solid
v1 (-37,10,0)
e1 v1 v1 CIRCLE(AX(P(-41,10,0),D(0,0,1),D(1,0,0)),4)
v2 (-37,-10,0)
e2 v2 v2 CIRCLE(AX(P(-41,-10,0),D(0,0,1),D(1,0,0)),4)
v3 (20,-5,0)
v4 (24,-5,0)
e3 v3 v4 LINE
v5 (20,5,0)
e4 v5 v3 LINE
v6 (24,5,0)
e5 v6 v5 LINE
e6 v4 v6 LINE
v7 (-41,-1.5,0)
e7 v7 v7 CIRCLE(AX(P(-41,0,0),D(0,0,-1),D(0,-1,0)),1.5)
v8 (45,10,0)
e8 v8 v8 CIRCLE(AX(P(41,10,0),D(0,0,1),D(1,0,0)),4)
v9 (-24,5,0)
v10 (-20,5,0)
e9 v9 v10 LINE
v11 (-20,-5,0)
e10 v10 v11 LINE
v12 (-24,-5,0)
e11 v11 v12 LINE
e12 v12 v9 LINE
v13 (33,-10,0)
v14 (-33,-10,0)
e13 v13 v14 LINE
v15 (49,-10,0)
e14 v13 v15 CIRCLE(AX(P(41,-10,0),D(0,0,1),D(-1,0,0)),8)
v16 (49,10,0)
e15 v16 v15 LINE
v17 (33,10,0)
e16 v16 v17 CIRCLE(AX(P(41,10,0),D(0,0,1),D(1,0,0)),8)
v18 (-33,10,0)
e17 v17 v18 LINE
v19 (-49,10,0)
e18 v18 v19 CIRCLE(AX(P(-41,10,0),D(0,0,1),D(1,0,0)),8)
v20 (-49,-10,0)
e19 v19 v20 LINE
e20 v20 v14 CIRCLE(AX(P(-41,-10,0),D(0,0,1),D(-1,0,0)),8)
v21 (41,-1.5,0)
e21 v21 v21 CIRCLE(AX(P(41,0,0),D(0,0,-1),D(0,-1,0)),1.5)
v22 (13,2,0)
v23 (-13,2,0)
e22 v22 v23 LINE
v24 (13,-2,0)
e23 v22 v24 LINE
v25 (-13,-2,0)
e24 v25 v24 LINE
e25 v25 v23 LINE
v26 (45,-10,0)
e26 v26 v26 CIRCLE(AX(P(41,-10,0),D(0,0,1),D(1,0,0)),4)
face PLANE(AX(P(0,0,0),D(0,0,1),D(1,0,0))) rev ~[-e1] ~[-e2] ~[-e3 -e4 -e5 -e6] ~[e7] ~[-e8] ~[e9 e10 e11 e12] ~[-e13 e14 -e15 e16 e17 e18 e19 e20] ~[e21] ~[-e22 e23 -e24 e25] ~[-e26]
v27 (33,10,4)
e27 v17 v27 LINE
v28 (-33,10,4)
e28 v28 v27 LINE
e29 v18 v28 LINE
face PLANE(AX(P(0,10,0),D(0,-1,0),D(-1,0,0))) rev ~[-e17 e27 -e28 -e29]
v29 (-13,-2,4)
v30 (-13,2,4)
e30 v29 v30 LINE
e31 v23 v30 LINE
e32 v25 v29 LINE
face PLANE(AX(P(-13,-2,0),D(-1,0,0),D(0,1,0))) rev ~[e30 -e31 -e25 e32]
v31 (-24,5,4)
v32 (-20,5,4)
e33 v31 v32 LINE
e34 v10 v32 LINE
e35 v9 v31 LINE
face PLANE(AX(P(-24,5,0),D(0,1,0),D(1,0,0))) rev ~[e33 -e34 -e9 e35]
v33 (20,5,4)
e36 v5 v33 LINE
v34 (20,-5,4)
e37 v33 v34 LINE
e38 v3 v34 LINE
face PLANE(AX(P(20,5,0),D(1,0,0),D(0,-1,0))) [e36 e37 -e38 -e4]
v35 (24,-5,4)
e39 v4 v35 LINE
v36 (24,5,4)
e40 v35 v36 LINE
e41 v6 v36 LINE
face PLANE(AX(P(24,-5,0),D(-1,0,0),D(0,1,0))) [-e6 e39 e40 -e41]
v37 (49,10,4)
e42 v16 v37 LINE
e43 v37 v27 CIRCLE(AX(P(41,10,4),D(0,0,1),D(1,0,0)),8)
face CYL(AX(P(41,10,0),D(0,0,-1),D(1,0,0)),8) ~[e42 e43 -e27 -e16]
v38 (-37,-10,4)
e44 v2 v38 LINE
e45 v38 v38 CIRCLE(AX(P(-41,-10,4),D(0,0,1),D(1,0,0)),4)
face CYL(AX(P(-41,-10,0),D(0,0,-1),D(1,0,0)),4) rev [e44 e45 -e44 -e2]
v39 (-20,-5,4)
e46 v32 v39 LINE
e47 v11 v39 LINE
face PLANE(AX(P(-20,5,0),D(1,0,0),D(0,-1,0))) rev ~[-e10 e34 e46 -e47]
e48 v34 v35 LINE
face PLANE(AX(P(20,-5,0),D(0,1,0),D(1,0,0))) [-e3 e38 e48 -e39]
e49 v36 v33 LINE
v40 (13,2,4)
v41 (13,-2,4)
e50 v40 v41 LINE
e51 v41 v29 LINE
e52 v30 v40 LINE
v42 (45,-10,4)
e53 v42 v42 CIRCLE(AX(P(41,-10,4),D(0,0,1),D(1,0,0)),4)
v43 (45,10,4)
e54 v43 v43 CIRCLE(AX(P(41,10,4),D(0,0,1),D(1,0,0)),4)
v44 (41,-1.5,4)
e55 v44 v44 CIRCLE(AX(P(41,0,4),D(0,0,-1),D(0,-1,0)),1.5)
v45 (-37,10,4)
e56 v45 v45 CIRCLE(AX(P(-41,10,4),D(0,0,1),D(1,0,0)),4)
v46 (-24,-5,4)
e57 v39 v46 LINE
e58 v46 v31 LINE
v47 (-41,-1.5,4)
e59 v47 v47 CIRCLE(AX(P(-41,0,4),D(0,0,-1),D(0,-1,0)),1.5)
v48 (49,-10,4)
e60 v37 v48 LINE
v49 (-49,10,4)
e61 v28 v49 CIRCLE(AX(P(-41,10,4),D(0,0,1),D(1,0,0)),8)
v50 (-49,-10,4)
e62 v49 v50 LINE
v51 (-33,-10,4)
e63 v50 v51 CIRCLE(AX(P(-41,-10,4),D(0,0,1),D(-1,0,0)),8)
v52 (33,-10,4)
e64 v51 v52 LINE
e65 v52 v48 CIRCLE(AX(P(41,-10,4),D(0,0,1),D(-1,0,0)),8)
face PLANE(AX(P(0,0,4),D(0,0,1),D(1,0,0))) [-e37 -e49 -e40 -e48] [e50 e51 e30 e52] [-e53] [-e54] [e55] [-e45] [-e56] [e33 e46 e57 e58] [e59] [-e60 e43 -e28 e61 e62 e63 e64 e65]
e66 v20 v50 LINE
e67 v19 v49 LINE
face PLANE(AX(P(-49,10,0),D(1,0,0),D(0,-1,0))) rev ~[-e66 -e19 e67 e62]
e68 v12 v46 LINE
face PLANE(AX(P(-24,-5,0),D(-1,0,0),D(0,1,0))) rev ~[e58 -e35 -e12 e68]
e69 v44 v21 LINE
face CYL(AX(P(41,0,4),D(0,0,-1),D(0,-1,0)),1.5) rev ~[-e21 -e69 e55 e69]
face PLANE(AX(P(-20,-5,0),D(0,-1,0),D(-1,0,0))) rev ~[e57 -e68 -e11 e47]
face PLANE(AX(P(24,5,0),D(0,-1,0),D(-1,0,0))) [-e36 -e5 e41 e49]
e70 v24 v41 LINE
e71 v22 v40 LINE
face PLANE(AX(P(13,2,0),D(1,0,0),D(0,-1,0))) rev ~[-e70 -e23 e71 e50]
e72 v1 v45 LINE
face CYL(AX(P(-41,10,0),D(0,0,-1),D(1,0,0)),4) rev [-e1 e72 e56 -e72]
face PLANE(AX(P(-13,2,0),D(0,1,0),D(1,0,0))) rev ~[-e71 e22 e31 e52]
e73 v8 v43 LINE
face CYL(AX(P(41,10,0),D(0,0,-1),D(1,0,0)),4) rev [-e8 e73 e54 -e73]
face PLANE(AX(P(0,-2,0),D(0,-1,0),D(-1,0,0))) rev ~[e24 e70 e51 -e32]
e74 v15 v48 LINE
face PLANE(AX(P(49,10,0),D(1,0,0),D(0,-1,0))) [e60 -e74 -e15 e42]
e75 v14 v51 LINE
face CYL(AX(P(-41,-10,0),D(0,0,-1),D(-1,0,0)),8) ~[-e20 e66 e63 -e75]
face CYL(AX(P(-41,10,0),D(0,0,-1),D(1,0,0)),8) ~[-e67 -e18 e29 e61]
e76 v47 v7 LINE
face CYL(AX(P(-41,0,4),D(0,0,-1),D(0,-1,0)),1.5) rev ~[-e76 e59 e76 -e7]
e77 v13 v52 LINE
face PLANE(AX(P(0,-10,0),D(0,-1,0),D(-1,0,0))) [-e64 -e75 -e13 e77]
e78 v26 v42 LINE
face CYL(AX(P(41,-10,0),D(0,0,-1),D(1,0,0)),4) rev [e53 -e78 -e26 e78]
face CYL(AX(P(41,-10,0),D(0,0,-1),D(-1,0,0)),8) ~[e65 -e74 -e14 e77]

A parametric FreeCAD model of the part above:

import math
import FreeCAD as App
import Part
import Sketcher
from FreeCAD import Vector
Q = App.Units.Quantity


def add_polygon(sketch, points):
    """Adds a closed chain of lines whose ends are joined by coincident constraints."""
    first, n = sketch.GeometryCount, len(points)
    for a, b in zip(points, points[1:] + points[:1]):
        sketch.addGeometry(Part.LineSegment(App.Vector(*a, 0), App.Vector(*b, 0)), False)
    for i in range(n):
        sketch.addConstraint(Sketcher.Constraint("Coincident", first + i, 2, first + (i + 1) % n, 1))

doc = App.newDocument("Part")
body = doc.addObject("PartDesign::Body", "Body")

# Sketch on XY plane
sketch1 = body.newObject("Sketcher::SketchObject", "Sketch")
sketch1.AttachmentSupport = (doc.getObject("XY_Plane"), [""])
sketch1.MapMode = "FlatFace"
sketch1.addGeometry(Part.ArcOfCircle(Part.Circle(Vector(-41, 10, 0), Vector(0, 0, 1), 8), math.radians(0), math.radians(180)), False)  # 0
sketch1.addGeometry(Part.LineSegment(Vector(-49, 10, 0), Vector(-49, -10, 0)), False)  # 1
sketch1.addGeometry(Part.ArcOfCircle(Part.Circle(Vector(-41, -10, 0), Vector(0, 0, 1), 8), math.radians(180), math.radians(360)), False)  # 2
sketch1.addGeometry(Part.LineSegment(Vector(-33, -10, 0), Vector(33, -10, 0)), False)  # 3
sketch1.addGeometry(Part.ArcOfCircle(Part.Circle(Vector(41, -10, 0), Vector(0, 0, 1), 8), math.radians(180), math.radians(360)), False)  # 4
sketch1.addGeometry(Part.LineSegment(Vector(49, -10, 0), Vector(49, 10, 0)), False)  # 5
sketch1.addGeometry(Part.ArcOfCircle(Part.Circle(Vector(41, 10, 0), Vector(0, 0, 1), 8), math.radians(0), math.radians(180)), False)  # 6
sketch1.addGeometry(Part.LineSegment(Vector(33, 10, 0), Vector(-33, 10, 0)), False)  # 7
add_polygon(sketch1, [(-13, 2), (13, 2), (13, -2), (-13, -2)])  # lines 8-11
sketch1.addGeometry(Part.Circle(Vector(-41, -10, 0), Vector(0, 0, 1), 4), False)  # 12
add_polygon(sketch1, [(-24, -5), (-24, 5), (-20, 5), (-20, -5)])  # lines 13-16
sketch1.addGeometry(Part.Circle(Vector(-41, 10, 0), Vector(0, 0, 1), 4), False)  # 17
add_polygon(sketch1, [(20, -5), (20, 5), (24, 5), (24, -5)])  # lines 18-21
sketch1.addGeometry(Part.Circle(Vector(41, 10, 0), Vector(0, 0, 1), 4), False)  # 22
sketch1.addGeometry(Part.Circle(Vector(41, -10, 0), Vector(0, 0, 1), 4), False)  # 23
sketch1.addConstraint([
    Sketcher.Constraint("Tangent", 0, 2, 1, 1),
    Sketcher.Constraint("Tangent", 1, 2, 2, 1),
    Sketcher.Constraint("Coincident", 2, 2, 3, 1),
    Sketcher.Constraint("Coincident", 3, 2, 4, 1),
    Sketcher.Constraint("Tangent", 4, 2, 5, 1),
    Sketcher.Constraint("Tangent", 5, 2, 6, 1),
    Sketcher.Constraint("Coincident", 6, 2, 7, 1),
    Sketcher.Constraint("Coincident", 7, 2, 0, 1),
    Sketcher.Constraint("Vertical", 1),
    Sketcher.Constraint("Horizontal", 3),
    Sketcher.Constraint("Vertical", 5),
    Sketcher.Constraint("Horizontal", 7),
    Sketcher.Constraint("Horizontal", 8),
    Sketcher.Constraint("Vertical", 9),
    Sketcher.Constraint("Horizontal", 10),
    Sketcher.Constraint("Vertical", 11),
    Sketcher.Constraint("Vertical", 13),
    Sketcher.Constraint("Horizontal", 14),
    Sketcher.Constraint("Vertical", 15),
    Sketcher.Constraint("Horizontal", 16),
    Sketcher.Constraint("Vertical", 18),
    Sketcher.Constraint("Horizontal", 19),
    Sketcher.Constraint("Vertical", 20),
    Sketcher.Constraint("Horizontal", 21),
    Sketcher.Constraint("Coincident", 12, 3, 2, 3),
    Sketcher.Constraint("Coincident", 17, 3, 0, 3),
    Sketcher.Constraint("Coincident", 22, 3, 6, 3),
    Sketcher.Constraint("Coincident", 23, 3, 4, 3),
    Sketcher.Constraint("Equal", 0, 2),
    Sketcher.Constraint("Equal", 2, 4),
    Sketcher.Constraint("Equal", 4, 6),
    Sketcher.Constraint("Equal", 12, 17),
    Sketcher.Constraint("Equal", 17, 22),
    Sketcher.Constraint("Equal", 22, 23),
    Sketcher.Constraint("Symmetric", 0, 3, 4, 3, -1, 1),
    Sketcher.Constraint("Symmetric", 8, 2, 10, 2, -1, 1),
    Sketcher.Constraint("Symmetric", 15, 2, 18, 2, -1, 1),
    Sketcher.Constraint("Symmetric", 13, 2, 20, 2, -1, 1),
    Sketcher.Constraint("Horizontal", 2, 3, 4, 3),
    Sketcher.Constraint("Horizontal", 0, 3, 6, 3),
    Sketcher.Constraint("Horizontal", 1, 2, 2, 2),
    Sketcher.Constraint("Horizontal", 5, 2, 6, 2),
    Sketcher.Constraint("Horizontal", 14, 2, 18, 2),
    Sketcher.Constraint("Equal", 21, 9),
    Sketcher.Constraint("Diameter", 12, Q("8 mm")),
    Sketcher.Constraint("Radius", 0, Q("8 mm")),
    Sketcher.Constraint("DistanceX", 8, 1, 8, 2, Q("26 mm")),
    Sketcher.Constraint("DistanceX", 14, 1, 14, 2, Q("4 mm")),
    Sketcher.Constraint("DistanceY", 1, 2, 1, 1, Q("20 mm")),
    Sketcher.Constraint("DistanceY", 13, 1, 13, 2, Q("10 mm")),
    Sketcher.Constraint("DistanceX", 14, 2, -1, 1, Q("20 mm")),
    Sketcher.Constraint("DistanceX", 2, 3, 4, 3, Q("82 mm")),
])
pad1 = body.newObject("PartDesign::Pad", "Pad")
pad1.Profile = sketch1
pad1.Length = 4

# Sketch on XY plane
sketch2 = body.newObject("Sketcher::SketchObject", "Sketch001")
sketch2.AttachmentSupport = (doc.getObject("XY_Plane"), [""])
sketch2.MapMode = "FlatFace"
sketch2.AttachmentOffset = App.Placement(Vector(0, 0, 4), App.Rotation())
sketch2.addGeometry([
    Part.Circle(Vector(-41, 0, 0), Vector(0, 0, 1), 1.5),
    Part.Circle(Vector(41, 0, 0), Vector(0, 0, 1), 1.5),
], False)
sketch2.addConstraint([
    Sketcher.Constraint("Equal", 0, 1),
    Sketcher.Constraint("Symmetric", 0, 3, 1, 3, -1, 1),
    Sketcher.Constraint("PointOnObject", 0, 3, -1),
    Sketcher.Constraint("Diameter", 0, Q("3 mm")),
    Sketcher.Constraint("DistanceX", 0, 3, -1, 1, Q("41 mm")),
])
doc.recompute()
hole = body.newObject("PartDesign::Hole", "Hole")
hole.Profile = sketch2
hole.ThreadType = "None"
hole.Diameter = 3
hole.DepthType = "ThroughAll"

doc.recompute()
